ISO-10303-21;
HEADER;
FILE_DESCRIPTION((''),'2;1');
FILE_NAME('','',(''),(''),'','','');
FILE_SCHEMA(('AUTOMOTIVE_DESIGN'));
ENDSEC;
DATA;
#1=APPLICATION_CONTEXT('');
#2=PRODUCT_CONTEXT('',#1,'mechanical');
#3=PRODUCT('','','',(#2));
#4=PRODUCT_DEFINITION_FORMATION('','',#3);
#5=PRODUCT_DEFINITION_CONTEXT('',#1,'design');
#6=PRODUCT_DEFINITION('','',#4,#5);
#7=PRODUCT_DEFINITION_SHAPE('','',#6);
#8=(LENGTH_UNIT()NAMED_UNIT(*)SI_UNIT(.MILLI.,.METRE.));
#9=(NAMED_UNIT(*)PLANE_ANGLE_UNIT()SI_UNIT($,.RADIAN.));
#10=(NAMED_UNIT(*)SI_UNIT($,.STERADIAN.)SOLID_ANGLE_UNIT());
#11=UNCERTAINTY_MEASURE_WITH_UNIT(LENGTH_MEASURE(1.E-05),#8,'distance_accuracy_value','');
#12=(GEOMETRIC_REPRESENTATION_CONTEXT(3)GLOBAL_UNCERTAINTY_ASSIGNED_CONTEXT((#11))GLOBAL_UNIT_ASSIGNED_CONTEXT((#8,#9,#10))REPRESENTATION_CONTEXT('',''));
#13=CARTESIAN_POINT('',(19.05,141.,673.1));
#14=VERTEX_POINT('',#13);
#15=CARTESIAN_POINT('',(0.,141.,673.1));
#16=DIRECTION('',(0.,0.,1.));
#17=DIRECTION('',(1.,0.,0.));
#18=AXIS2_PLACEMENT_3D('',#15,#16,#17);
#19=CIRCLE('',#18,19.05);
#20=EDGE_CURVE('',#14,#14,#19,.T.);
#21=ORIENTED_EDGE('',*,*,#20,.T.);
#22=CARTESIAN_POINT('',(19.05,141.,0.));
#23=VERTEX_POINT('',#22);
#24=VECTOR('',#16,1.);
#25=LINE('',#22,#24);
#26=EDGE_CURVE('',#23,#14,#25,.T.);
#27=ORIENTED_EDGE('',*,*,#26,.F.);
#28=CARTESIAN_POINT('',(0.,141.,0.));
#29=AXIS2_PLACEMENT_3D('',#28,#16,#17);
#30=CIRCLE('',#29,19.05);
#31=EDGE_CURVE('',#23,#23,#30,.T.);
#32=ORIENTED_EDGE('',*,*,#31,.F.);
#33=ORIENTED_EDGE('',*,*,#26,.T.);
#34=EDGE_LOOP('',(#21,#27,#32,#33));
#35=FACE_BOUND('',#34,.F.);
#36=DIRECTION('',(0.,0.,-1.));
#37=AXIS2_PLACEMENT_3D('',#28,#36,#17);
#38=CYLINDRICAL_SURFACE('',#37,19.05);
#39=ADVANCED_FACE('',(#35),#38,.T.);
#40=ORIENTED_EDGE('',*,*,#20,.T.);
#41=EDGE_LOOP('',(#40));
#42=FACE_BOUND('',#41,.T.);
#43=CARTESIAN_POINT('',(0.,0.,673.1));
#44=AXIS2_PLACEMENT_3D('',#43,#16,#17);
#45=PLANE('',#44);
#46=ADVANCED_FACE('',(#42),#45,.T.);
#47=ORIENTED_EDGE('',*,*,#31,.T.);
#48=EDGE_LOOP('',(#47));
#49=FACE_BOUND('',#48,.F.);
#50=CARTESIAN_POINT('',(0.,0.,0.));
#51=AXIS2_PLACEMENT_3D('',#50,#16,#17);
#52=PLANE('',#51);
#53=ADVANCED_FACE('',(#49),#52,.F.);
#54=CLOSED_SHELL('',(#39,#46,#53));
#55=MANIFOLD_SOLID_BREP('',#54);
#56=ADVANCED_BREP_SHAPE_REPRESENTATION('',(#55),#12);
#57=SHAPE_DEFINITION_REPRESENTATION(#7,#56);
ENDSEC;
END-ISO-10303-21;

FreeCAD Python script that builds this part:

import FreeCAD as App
import Part
import Sketcher
from FreeCAD import Vector
Q = App.Units.Quantity

doc = App.newDocument("Part")
params = doc.addObject("Spreadsheet::Sheet", "Params")
for row, (alias, value) in enumerate([
    ("sketch1_diameter", "1.5 in"),
    ("pad1_length", "26.5 in"),
], start=1):
    params.set(f"A{row}", alias)
    params.set(f"B{row}", "=" + value)
    params.setAlias(f"B{row}", alias)

body = doc.addObject("PartDesign::Body", "Body")

# Sketch on XY plane
sketch1 = doc.addObject("Sketcher::SketchObject", "Sketch")
body.addObject(sketch1)
sketch1.AttachmentSupport = (doc.XY_Plane, [""])
sketch1.MapMode = "FlatFace"
sketch1.addGeometry(Part.Circle(Vector(0, 141, 0), Vector(0, 0, 1), 19), False)
sketch1.addConstraint(Sketcher.Constraint("PointOnObject", 0, 3, -2))
sketch1.addConstraint(Sketcher.Constraint("Diameter", 0, Q("1.5 in")))
sketch1.addConstraint(Sketcher.Constraint("DistanceY", -1, 1, 0, 3, Q("141 mm")))
sketch1.setExpression("Constraints[1]", "Params.sketch1_diameter")
pad1 = doc.addObject("PartDesign::Pad", "Pad")
body.addObject(pad1)
pad1.Profile = sketch1
pad1.setExpression("Length", "Params.pad1_length")

doc.recompute()
